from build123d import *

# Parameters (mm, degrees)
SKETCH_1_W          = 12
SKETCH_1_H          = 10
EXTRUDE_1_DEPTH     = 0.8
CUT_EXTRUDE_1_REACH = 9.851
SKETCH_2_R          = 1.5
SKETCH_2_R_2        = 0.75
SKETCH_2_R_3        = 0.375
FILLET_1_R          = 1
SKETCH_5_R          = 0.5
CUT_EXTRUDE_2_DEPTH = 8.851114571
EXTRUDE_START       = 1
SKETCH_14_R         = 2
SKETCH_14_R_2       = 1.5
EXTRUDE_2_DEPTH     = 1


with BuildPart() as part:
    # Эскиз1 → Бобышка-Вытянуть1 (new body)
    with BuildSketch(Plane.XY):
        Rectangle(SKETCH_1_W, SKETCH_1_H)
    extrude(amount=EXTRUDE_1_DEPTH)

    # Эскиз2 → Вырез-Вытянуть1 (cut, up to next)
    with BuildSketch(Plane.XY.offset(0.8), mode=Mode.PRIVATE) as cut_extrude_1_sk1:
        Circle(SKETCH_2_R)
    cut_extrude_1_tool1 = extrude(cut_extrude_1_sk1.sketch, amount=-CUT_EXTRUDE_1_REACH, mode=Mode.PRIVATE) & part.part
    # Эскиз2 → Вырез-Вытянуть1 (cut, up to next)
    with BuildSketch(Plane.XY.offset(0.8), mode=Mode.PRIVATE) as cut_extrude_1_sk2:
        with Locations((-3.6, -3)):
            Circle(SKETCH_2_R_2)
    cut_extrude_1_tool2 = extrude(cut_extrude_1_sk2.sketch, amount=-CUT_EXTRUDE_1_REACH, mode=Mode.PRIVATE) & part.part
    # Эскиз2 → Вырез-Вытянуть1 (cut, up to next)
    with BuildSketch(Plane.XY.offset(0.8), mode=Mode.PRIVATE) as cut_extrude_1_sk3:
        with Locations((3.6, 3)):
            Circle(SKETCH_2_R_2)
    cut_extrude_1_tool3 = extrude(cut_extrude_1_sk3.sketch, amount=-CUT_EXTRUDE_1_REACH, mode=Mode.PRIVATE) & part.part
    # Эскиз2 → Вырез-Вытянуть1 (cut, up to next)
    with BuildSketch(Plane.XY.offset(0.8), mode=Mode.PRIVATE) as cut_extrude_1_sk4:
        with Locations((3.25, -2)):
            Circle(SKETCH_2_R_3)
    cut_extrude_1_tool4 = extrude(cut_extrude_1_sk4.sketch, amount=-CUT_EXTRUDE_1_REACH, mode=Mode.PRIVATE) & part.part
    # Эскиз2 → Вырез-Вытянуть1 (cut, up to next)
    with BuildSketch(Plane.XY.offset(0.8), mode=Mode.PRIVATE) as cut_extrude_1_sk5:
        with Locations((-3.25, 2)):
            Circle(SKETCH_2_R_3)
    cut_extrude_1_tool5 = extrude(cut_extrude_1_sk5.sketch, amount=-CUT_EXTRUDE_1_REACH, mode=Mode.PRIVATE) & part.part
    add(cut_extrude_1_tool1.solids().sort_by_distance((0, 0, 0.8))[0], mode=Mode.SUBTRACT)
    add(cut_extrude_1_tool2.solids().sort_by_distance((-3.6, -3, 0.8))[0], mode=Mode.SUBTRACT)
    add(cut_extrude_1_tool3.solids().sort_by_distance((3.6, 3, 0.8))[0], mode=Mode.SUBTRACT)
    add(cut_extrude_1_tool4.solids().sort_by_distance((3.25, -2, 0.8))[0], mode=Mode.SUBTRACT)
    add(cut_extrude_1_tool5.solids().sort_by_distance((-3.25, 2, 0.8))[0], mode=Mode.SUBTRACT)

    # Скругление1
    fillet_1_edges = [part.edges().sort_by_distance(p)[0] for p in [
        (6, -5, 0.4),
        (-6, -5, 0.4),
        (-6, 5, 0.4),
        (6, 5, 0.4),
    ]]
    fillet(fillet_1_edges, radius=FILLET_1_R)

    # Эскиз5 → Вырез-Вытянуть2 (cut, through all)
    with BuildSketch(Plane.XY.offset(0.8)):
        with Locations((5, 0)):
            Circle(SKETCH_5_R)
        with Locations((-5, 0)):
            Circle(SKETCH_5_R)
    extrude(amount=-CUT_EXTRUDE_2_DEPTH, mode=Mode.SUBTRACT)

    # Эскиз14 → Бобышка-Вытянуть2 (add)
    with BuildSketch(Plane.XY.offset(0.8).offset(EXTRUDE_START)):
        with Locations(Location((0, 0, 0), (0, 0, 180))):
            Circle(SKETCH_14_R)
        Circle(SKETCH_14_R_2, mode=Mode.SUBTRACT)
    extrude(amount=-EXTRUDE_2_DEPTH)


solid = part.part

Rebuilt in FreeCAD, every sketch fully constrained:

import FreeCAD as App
import Part
import Sketcher
Q = App.Units.Quantity


def edges_at(feature, points):
    """Names of the edges that pass closest to the given points."""
    edges = feature.Shape.Edges
    near = lambda p: min(range(len(edges)), key=lambda i: edges[i].distToShape(Part.Vertex(*p))[0])
    return sorted({f"Edge{near(p) + 1}" for p in points})

doc = App.newDocument("Part")
body = doc.addObject("PartDesign::Body", "Body")

sketch1 = body.newObject("Sketcher::SketchObject", "Sketch")
sketch1.AttachmentSupport = (doc.getObject("XY_Plane"), [""])
sketch1.MapMode = "FlatFace"
sketch1.addGeometry(Part.LineSegment(App.Vector(-6, 5, 0), App.Vector(-6, -5, 0)), False)
sketch1.addGeometry(Part.LineSegment(App.Vector(-6, -5, 0), App.Vector(6, -5, 0)), False)
sketch1.addGeometry(Part.LineSegment(App.Vector(6, -5, 0), App.Vector(6, 5, 0)), False)
sketch1.addGeometry(Part.LineSegment(App.Vector(6, 5, 0), App.Vector(-6, 5, 0)), False)
sketch1.addConstraint(Sketcher.Constraint("Coincident", 0, 2, 1, 1))
sketch1.addConstraint(Sketcher.Constraint("Coincident", 1, 2, 2, 1))
sketch1.addConstraint(Sketcher.Constraint("Coincident", 2, 2, 3, 1))
sketch1.addConstraint(Sketcher.Constraint("Coincident", 3, 2, 0, 1))
sketch1.addConstraint(Sketcher.Constraint("Vertical", 0))
sketch1.addConstraint(Sketcher.Constraint("Horizontal", 1))
sketch1.addConstraint(Sketcher.Constraint("Vertical", 2))
sketch1.addConstraint(Sketcher.Constraint("Horizontal", 3))
sketch1.addConstraint(Sketcher.Constraint("Symmetric", 0, 2, 2, 2, -1, 1))
sketch1.addConstraint(Sketcher.Constraint("DistanceX", 1, 1, 1, 2, Q("12 mm")))
sketch1.addConstraint(Sketcher.Constraint("DistanceY", 0, 2, 0, 1, Q("10 mm")))
pad1 = body.newObject("PartDesign::Pad", "Pad")
pad1.Profile = sketch1
pad1.Length = 0.8

sketch2 = body.newObject("Sketcher::SketchObject", "Sketch001")
sketch2.AttachmentSupport = (doc.getObject("XY_Plane"), [""])
sketch2.MapMode = "FlatFace"
sketch2.AttachmentOffset = App.Placement(App.Vector(0, 0, 0.8), App.Rotation())
sketch2.addGeometry(Part.Circle(App.Vector(0, 0, 0), App.Vector(0, 0, 1), 1.5), False)
sketch2.addConstraint(Sketcher.Constraint("Coincident", 0, 3, -1, 1))
sketch2.addConstraint(Sketcher.Constraint("Diameter", 0, Q("3 mm")))
pocket1 = body.newObject("PartDesign::Pocket", "Pocket")
pocket1.Profile = sketch2
pocket1.Type = "UpToFirst"

sketch3 = body.newObject("Sketcher::SketchObject", "Sketch002")
sketch3.AttachmentSupport = (doc.getObject("XY_Plane"), [""])
sketch3.MapMode = "FlatFace"
sketch3.AttachmentOffset = App.Placement(App.Vector(0, 0, 0.8), App.Rotation())
sketch3.addGeometry(Part.Circle(App.Vector(-3.6, -3, 0), App.Vector(0, 0, 1), 0.75), False)
sketch3.addConstraint(Sketcher.Constraint("Diameter", 0, Q("1.5 mm")))
sketch3.addConstraint(Sketcher.Constraint("DistanceY", 0, 3, -1, 1, Q("3 mm")))
sketch3.addConstraint(Sketcher.Constraint("DistanceX", 0, 3, -1, 1, Q("3.6 mm")))
pocket2 = body.newObject("PartDesign::Pocket", "Pocket001")
pocket2.Profile = sketch3
pocket2.Type = "UpToFirst"

sketch4 = body.newObject("Sketcher::SketchObject", "Sketch003")
sketch4.AttachmentSupport = (doc.getObject("XY_Plane"), [""])
sketch4.MapMode = "FlatFace"
sketch4.AttachmentOffset = App.Placement(App.Vector(0, 0, 0.8), App.Rotation())
sketch4.addGeometry(Part.Circle(App.Vector(3.6, 3, 0), App.Vector(0, 0, 1), 0.75), False)
sketch4.addConstraint(Sketcher.Constraint("Diameter", 0, Q("1.5 mm")))
sketch4.addConstraint(Sketcher.Constraint("DistanceY", -1, 1, 0, 3, Q("3 mm")))
sketch4.addConstraint(Sketcher.Constraint("DistanceX", -1, 1, 0, 3, Q("3.6 mm")))
pocket3 = body.newObject("PartDesign::Pocket", "Pocket002")
pocket3.Profile = sketch4
pocket3.Type = "UpToFirst"

sketch5 = body.newObject("Sketcher::SketchObject", "Sketch004")
sketch5.AttachmentSupport = (doc.getObject("XY_Plane"), [""])
sketch5.MapMode = "FlatFace"
sketch5.AttachmentOffset = App.Placement(App.Vector(0, 0, 0.8), App.Rotation())
sketch5.addGeometry(Part.Circle(App.Vector(3.25, -2, 0), App.Vector(0, 0, 1), 0.375), False)
sketch5.addConstraint(Sketcher.Constraint("Diameter", 0, Q("0.75 mm")))
sketch5.addConstraint(Sketcher.Constraint("DistanceY", 0, 3, -1, 1, Q("2 mm")))
sketch5.addConstraint(Sketcher.Constraint("DistanceX", -1, 1, 0, 3, Q("3.25 mm")))
pocket4 = body.newObject("PartDesign::Pocket", "Pocket003")
pocket4.Profile = sketch5
pocket4.Type = "UpToFirst"

sketch6 = body.newObject("Sketcher::SketchObject", "Sketch005")
sketch6.AttachmentSupport = (doc.getObject("XY_Plane"), [""])
sketch6.MapMode = "FlatFace"
sketch6.AttachmentOffset = App.Placement(App.Vector(0, 0, 0.8), App.Rotation())
sketch6.addGeometry(Part.Circle(App.Vector(-3.25, 2, 0), App.Vector(0, 0, 1), 0.375), False)
sketch6.addConstraint(Sketcher.Constraint("Diameter", 0, Q("0.75 mm")))
sketch6.addConstraint(Sketcher.Constraint("DistanceY", -1, 1, 0, 3, Q("2 mm")))
sketch6.addConstraint(Sketcher.Constraint("DistanceX", 0, 3, -1, 1, Q("3.25 mm")))
pocket5 = body.newObject("PartDesign::Pocket", "Pocket004")
pocket5.Profile = sketch6
pocket5.Type = "UpToFirst"
doc.recompute()

fillet = body.newObject("PartDesign::Fillet", "Fillet")
fillet.Base = (pocket5, edges_at(pocket5, [
    (6, -5, 0.4),
    (-6, -5, 0.4),
    (-6, 5, 0.4),
    (6, 5, 0.4),
]))
fillet.Radius = 1

sketch7 = body.newObject("Sketcher::SketchObject", "Sketch006")
sketch7.AttachmentSupport = (doc.getObject("XY_Plane"), [""])
sketch7.MapMode = "FlatFace"
sketch7.AttachmentOffset = App.Placement(App.Vector(0, 0, 0.8), App.Rotation())
sketch7.addGeometry(Part.Circle(App.Vector(5, 0, 0), App.Vector(0, 0, 1), 0.5), False)
sketch7.addGeometry(Part.Circle(App.Vector(-5, 0, 0), App.Vector(0, 0, 1), 0.5), False)
sketch7.addConstraint(Sketcher.Constraint("Equal", 0, 1))
sketch7.addConstraint(Sketcher.Constraint("Symmetric", 0, 3, 1, 3, -1, 1))
sketch7.addConstraint(Sketcher.Constraint("PointOnObject", 0, 3, -1))
sketch7.addConstraint(Sketcher.Constraint("Diameter", 0, Q("1 mm")))
sketch7.addConstraint(Sketcher.Constraint("DistanceX", -1, 1, 0, 3, Q("5 mm")))
pocket6 = body.newObject("PartDesign::Pocket", "Pocket005")
pocket6.Profile = sketch7
pocket6.Type = "ThroughAll"

sketch8 = body.newObject("Sketcher::SketchObject", "Sketch007")
sketch8.AttachmentSupport = (doc.getObject("XY_Plane"), [""])
sketch8.MapMode = "FlatFace"
sketch8.AttachmentOffset = App.Placement(App.Vector(0, 0, 1.8), App.Rotation())
sketch8.addGeometry(Part.Circle(App.Vector(0, 0, 0), App.Vector(0, 0, 1), 2), False)
sketch8.addGeometry(Part.Circle(App.Vector(0, 0, 0), App.Vector(0, 0, 1), 1.5), False)
sketch8.addConstraint(Sketcher.Constraint("Coincident", 0, 3, -1, 1))
sketch8.addConstraint(Sketcher.Constraint("Coincident", 1, 3, -1, 1))
sketch8.addConstraint(Sketcher.Constraint("Diameter", 0, Q("4 mm")))
sketch8.addConstraint(Sketcher.Constraint("Diameter", 1, Q("3 mm")))
pad2 = body.newObject("PartDesign::Pad", "Pad001")
pad2.Profile = sketch8
pad2.Length = 1
pad2.Reversed = True

doc.recompute()
